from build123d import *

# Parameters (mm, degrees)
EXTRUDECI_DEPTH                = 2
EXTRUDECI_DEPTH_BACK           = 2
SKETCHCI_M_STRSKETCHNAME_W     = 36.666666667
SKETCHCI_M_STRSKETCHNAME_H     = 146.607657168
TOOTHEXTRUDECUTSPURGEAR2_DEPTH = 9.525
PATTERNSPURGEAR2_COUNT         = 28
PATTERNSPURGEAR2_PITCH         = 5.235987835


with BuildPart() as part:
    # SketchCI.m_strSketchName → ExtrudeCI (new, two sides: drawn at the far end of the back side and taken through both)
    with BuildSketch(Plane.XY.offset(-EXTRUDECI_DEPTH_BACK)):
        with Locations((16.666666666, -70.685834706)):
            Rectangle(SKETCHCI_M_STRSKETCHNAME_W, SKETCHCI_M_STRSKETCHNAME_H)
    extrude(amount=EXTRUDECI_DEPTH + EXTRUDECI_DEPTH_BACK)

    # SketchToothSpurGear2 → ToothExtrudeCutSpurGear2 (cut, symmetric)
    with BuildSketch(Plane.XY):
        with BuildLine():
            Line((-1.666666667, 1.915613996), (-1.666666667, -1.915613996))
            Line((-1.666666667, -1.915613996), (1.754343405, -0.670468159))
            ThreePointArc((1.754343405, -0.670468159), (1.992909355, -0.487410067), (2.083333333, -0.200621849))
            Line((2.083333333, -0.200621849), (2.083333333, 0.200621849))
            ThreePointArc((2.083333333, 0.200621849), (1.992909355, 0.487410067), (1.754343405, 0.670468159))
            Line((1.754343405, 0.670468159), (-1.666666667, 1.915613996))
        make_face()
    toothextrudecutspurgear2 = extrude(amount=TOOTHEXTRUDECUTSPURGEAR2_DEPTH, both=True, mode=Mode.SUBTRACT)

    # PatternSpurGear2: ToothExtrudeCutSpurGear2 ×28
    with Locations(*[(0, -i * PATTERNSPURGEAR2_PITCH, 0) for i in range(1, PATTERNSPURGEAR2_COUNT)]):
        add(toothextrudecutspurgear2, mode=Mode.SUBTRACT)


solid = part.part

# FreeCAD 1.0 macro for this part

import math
import FreeCAD as App
import Part
import Sketcher
Q = App.Units.Quantity


def add_polygon(sketch, points):
    """Adds a closed chain of lines whose ends are joined by coincident constraints."""
    first, n = sketch.GeometryCount, len(points)
    for a, b in zip(points, points[1:] + points[:1]):
        sketch.addGeometry(Part.LineSegment(App.Vector(*a, 0), App.Vector(*b, 0)), False)
    for i in range(n):
        sketch.addConstraint(Sketcher.Constraint("Coincident", first + i, 2, first + (i + 1) % n, 1))

doc = App.newDocument("Part")
body = doc.addObject("PartDesign::Body", "Body")

sketch1 = body.newObject("Sketcher::SketchObject", "Sketch")
sketch1.AttachmentSupport = (doc.getObject("XY_Plane"), [""])
sketch1.MapMode = "FlatFace"
add_polygon(sketch1, [(-1.666667, 2.617994), (-1.666667, -143.989663), (35, -143.989663), (35, 2.617994)])
sketch1.addConstraint([
    Sketcher.Constraint("Vertical", 0),
    Sketcher.Constraint("Horizontal", 1),
    Sketcher.Constraint("Vertical", 2),
    Sketcher.Constraint("Horizontal", 3),
    Sketcher.Constraint("DistanceX", -1, 1, 1, 2, Q("35 mm")),
    Sketcher.Constraint("DistanceX", 1, 1, 1, 2, Q("36.666667 mm")),
    Sketcher.Constraint("DistanceY", 0, 2, 0, 1, Q("146.607657 mm")),
    Sketcher.Constraint("DistanceY", 0, 2, -1, 1, Q("143.989663 mm")),
])
pad1 = body.newObject("PartDesign::Pad", "Pad")
pad1.Profile = sketch1
pad1.Type = "TwoLengths"
pad1.Length = 2
pad1.Length2 = 2

sketch2 = body.newObject("Sketcher::SketchObject", "Sketch001")
sketch2.AttachmentSupport = (doc.getObject("XY_Plane"), [""])
sketch2.MapMode = "FlatFace"
sketch2.addGeometry([
    Part.LineSegment(App.Vector(-1.666667, 1.915614, 0), App.Vector(-1.666667, -1.915614, 0)),
    Part.LineSegment(App.Vector(-1.666667, -1.915614, 0), App.Vector(1.754343, -0.670468, 0)),
    Part.ArcOfCircle(Part.Circle(App.Vector(1.583333, -0.200622, 0), App.Vector(0, 0, 1), 0.5), math.radians(-70), math.radians(0)),
    Part.LineSegment(App.Vector(2.083333, -0.200622, 0), App.Vector(2.083333, 0.200622, 0)),
    Part.ArcOfCircle(Part.Circle(App.Vector(1.583333, 0.200622, 0), App.Vector(0, 0, 1), 0.5), math.radians(0), math.radians(70)),
    Part.LineSegment(App.Vector(1.754343, 0.670468, 0), App.Vector(-1.666667, 1.915614, 0)),
], False)
sketch2.addConstraint([
    Sketcher.Constraint("Coincident", 0, 2, 1, 1),
    Sketcher.Constraint("Tangent", 1, 2, 2, 1),
    Sketcher.Constraint("Tangent", 2, 2, 3, 1),
    Sketcher.Constraint("Tangent", 3, 2, 4, 1),
    Sketcher.Constraint("Tangent", 4, 2, 5, 1),
    Sketcher.Constraint("Coincident", 5, 2, 0, 1),
    Sketcher.Constraint("Vertical", 0),
    Sketcher.Constraint("Vertical", 3),
    Sketcher.Constraint("Equal", 2, 4),
    Sketcher.Constraint("Symmetric", 1, 2, 4, 2, -1),
    Sketcher.Constraint("Radius", 2, Q("0.5 mm")),
    Sketcher.Constraint("Angle", 1, Q("20 deg")),
    Sketcher.Constraint("DistanceX", 0, 2, 2, 3, Q("3.25 mm")),
    Sketcher.Constraint("DistanceY", 0, 2, 0, 1, Q("3.831228 mm")),
    Sketcher.Constraint("DistanceX", -1, 1, 2, 3, Q("1.583333 mm")),
])
pocket1 = body.newObject("PartDesign::Pocket", "Pocket")
pocket1.Profile = sketch2
pocket1.Length = 19.05
pocket1.Midplane = True
doc.recompute()

linearpattern = body.newObject("PartDesign::LinearPattern", "LinearPattern")
linearpattern.Originals = [pocket1]
linearpattern.Direction = (doc.getObject("Y_Axis"), [""])
linearpattern.Mode = "offset"
linearpattern.Offset = 5.235988
linearpattern.Occurrences = 28
linearpattern.Reversed = True
body.Tip = linearpattern

doc.recompute()
